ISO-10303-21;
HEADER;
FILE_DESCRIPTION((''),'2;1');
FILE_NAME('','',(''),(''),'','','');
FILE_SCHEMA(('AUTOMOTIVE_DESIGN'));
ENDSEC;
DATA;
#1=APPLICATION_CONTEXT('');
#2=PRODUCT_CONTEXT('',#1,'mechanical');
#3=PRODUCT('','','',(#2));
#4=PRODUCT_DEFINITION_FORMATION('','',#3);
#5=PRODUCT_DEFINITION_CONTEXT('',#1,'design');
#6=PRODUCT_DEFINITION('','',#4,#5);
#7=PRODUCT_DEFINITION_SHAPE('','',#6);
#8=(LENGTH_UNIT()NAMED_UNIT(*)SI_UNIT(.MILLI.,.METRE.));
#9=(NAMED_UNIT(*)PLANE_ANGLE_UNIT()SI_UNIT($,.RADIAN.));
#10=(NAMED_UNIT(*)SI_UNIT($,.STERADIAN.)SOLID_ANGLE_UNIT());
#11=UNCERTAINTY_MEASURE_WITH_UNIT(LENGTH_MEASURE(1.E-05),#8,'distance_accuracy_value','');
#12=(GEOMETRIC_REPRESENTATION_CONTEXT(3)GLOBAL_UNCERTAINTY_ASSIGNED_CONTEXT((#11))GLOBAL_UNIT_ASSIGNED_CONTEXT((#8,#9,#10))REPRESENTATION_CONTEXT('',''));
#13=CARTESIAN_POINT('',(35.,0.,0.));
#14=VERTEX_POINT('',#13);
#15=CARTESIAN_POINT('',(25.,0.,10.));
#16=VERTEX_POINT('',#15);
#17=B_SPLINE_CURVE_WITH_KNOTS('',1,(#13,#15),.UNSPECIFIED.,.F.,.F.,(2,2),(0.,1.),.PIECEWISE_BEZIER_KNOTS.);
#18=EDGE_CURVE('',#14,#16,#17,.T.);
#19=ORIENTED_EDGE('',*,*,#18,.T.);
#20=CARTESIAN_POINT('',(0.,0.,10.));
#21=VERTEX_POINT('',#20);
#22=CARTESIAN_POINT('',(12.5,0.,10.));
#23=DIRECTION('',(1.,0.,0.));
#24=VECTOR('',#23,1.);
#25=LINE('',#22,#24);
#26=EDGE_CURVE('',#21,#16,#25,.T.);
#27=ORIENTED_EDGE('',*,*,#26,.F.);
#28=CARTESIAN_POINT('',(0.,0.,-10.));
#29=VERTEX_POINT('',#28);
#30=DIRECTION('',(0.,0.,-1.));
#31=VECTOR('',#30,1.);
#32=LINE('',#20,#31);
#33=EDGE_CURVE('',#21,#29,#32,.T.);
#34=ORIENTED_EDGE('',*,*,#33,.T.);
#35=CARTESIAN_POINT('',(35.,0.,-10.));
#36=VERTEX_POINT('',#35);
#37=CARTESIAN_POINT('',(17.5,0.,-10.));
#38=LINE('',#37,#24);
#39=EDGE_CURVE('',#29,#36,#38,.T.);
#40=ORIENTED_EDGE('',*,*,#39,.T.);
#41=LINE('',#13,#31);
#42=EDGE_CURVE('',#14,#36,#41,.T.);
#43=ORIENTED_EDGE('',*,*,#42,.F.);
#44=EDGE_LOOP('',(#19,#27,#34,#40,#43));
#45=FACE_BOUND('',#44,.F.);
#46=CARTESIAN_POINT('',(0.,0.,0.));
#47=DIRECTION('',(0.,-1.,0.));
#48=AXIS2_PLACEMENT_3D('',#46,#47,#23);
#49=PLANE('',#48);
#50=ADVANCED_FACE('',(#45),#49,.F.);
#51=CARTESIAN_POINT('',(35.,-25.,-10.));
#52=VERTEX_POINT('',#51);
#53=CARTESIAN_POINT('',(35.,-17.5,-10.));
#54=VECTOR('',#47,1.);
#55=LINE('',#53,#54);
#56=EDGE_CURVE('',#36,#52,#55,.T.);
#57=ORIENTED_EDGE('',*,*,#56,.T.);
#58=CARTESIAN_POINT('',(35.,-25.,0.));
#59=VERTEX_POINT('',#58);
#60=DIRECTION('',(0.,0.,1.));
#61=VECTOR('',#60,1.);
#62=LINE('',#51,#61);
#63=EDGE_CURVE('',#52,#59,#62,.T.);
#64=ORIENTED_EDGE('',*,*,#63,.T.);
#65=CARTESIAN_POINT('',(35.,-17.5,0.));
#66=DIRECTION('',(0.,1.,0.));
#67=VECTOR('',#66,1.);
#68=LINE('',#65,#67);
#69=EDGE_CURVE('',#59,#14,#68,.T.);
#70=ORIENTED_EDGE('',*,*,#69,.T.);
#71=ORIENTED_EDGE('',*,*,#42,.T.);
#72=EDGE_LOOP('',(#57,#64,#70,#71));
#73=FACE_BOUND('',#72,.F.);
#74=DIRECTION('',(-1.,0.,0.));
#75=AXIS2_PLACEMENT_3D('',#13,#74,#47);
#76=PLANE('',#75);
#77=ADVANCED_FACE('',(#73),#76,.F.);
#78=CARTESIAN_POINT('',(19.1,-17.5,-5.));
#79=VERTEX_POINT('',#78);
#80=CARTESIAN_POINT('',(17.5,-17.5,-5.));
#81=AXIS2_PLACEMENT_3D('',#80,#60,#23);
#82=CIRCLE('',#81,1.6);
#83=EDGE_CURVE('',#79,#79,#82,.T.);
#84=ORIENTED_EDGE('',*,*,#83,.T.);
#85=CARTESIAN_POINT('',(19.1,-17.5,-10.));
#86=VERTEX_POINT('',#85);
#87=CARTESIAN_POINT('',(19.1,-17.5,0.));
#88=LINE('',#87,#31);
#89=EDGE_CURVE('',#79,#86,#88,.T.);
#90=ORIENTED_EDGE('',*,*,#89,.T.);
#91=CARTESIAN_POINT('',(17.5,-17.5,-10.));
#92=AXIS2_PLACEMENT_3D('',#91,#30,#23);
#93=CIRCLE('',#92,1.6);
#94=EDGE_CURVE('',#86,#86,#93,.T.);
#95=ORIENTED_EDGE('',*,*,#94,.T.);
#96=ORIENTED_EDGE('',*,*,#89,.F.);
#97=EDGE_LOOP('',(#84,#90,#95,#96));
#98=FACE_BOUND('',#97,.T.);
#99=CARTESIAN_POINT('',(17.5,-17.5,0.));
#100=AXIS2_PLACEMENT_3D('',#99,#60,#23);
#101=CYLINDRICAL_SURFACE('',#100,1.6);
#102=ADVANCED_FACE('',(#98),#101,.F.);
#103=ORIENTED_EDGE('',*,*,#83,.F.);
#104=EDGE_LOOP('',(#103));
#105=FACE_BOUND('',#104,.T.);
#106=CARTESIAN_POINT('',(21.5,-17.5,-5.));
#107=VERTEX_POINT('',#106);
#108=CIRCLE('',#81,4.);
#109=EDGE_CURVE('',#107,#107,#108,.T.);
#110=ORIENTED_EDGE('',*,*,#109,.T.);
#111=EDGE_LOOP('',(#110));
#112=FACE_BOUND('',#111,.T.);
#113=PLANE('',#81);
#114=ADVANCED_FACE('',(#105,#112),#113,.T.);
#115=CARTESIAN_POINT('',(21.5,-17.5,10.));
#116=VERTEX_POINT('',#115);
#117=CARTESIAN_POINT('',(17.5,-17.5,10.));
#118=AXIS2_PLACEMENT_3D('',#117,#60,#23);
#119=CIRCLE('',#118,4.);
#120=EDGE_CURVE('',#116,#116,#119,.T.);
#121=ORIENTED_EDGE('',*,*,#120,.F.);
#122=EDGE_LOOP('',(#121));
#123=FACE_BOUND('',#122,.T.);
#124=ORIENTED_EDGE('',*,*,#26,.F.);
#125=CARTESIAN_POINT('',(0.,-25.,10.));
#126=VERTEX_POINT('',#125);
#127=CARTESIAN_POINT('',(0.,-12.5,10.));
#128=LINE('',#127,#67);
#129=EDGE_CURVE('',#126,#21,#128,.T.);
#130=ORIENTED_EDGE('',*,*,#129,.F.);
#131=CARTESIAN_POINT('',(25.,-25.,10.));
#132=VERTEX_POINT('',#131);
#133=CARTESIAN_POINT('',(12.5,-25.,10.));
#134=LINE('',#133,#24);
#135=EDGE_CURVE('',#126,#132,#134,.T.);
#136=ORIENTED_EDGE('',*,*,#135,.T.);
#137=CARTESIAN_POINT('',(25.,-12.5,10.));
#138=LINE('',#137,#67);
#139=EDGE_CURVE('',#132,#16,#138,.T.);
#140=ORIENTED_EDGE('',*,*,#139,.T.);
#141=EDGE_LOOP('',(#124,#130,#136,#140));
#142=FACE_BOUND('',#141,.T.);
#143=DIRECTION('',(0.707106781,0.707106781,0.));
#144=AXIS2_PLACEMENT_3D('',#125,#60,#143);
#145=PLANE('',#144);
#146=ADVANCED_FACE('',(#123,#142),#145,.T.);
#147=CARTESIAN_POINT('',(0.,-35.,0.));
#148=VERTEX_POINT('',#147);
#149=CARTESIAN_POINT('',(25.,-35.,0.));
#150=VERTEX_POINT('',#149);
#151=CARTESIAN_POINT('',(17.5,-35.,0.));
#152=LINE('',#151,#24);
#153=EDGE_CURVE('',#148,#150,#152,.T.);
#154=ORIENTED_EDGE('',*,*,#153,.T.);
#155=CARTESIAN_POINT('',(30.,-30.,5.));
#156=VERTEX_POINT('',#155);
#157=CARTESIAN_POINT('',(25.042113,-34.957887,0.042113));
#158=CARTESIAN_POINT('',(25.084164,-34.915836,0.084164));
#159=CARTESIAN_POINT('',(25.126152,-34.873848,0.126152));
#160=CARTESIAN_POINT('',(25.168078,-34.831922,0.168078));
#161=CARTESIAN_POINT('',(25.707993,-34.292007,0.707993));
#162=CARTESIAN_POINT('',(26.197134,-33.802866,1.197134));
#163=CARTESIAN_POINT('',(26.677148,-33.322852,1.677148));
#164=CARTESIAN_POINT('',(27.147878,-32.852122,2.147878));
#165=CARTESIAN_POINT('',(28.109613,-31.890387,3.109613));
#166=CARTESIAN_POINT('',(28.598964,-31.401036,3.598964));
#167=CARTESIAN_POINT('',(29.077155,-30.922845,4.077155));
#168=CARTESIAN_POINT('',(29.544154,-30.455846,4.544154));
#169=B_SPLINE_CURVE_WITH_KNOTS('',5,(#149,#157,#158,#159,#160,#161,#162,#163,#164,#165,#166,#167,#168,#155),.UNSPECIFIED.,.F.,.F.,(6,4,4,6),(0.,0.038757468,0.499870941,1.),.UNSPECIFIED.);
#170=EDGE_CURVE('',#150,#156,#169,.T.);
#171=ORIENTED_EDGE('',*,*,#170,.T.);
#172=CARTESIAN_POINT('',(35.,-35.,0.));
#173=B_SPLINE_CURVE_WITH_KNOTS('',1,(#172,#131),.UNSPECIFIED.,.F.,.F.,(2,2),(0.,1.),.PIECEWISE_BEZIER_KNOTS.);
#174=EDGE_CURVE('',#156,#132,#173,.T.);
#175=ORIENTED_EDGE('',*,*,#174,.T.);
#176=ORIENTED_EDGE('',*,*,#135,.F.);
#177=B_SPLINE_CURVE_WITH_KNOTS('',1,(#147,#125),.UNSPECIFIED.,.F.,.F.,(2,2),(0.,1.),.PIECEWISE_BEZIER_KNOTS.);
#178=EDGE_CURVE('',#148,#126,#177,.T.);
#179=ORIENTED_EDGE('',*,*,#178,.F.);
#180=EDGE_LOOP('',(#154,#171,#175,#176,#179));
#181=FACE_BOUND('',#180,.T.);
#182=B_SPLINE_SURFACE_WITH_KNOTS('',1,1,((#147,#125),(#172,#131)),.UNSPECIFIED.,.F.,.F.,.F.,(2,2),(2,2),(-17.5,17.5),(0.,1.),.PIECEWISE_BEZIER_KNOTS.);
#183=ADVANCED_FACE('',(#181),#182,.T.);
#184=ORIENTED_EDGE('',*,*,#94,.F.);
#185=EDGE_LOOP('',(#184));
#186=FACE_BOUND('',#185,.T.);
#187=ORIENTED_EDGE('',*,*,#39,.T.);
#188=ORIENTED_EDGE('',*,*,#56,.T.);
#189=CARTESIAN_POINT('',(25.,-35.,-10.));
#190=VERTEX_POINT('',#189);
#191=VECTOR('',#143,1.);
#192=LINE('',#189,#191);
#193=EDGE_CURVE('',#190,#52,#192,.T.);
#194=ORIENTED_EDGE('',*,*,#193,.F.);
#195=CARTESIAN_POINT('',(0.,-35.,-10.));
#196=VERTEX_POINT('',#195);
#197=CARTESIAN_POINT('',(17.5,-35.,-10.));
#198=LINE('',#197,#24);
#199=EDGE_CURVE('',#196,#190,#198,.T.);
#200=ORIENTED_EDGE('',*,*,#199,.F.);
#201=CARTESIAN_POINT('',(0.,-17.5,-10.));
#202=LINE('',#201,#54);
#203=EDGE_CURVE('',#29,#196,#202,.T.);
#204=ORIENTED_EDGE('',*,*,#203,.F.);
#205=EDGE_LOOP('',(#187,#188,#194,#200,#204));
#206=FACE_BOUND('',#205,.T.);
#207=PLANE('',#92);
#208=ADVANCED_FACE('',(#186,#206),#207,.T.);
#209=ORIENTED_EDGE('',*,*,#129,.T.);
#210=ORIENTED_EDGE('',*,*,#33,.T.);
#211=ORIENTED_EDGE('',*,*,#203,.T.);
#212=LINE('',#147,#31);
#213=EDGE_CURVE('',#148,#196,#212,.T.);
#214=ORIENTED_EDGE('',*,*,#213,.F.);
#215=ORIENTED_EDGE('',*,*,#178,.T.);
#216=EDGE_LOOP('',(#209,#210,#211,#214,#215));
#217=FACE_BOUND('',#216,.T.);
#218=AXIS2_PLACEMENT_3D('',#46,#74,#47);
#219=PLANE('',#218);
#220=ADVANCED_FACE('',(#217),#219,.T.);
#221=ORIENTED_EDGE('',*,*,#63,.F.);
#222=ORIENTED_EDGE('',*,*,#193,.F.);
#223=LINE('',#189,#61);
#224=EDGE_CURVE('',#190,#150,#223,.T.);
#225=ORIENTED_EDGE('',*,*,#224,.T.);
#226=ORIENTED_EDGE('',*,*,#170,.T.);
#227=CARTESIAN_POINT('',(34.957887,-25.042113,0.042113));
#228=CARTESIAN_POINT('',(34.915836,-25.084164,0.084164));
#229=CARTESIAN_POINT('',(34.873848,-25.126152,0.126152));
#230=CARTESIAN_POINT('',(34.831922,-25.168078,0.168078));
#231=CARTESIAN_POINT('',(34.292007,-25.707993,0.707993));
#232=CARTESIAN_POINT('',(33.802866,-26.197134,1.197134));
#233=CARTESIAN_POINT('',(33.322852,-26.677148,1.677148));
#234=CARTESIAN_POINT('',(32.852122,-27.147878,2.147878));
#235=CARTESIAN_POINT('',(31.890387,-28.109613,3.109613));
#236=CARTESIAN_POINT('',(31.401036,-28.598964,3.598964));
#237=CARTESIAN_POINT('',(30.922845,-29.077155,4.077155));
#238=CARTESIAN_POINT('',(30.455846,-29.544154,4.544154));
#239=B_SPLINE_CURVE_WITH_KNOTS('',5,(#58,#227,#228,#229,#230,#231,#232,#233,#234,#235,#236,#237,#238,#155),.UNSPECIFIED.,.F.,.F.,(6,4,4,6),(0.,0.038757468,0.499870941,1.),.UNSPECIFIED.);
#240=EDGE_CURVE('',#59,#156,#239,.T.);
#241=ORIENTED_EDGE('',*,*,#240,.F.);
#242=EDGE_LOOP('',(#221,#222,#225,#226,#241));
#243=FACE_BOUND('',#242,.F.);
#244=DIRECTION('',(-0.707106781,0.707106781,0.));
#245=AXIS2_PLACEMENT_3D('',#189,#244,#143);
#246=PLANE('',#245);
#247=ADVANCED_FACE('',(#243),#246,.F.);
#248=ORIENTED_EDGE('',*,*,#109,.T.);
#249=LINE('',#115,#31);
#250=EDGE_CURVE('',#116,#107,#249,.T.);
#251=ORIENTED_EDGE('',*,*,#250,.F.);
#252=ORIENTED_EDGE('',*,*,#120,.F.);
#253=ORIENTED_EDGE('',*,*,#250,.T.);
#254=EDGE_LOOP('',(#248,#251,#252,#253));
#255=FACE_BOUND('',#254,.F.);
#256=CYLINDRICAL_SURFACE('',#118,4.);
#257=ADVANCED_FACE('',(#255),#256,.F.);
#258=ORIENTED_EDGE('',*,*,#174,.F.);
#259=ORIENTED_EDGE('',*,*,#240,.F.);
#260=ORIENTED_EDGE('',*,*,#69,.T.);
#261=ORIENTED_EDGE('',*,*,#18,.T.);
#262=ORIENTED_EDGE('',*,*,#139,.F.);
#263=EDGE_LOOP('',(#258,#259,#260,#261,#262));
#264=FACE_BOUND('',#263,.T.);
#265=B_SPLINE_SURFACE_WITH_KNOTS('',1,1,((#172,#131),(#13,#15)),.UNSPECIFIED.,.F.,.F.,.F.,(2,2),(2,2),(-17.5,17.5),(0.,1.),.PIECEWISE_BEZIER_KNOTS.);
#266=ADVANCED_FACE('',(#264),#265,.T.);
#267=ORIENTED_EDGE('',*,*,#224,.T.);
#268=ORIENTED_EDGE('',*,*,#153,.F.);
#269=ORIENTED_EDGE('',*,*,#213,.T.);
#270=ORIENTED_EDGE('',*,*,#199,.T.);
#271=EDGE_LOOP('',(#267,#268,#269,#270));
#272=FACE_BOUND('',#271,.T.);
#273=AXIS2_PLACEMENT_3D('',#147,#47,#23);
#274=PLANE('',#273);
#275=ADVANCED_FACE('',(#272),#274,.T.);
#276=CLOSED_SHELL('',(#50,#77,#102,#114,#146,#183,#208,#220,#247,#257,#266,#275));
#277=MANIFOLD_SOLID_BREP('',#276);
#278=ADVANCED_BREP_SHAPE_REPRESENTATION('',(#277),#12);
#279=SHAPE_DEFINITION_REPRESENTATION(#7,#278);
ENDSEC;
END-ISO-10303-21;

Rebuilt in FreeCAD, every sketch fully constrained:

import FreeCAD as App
import Part
import Sketcher
from FreeCAD import Vector

doc = App.newDocument("Part")
params = doc.addObject("Spreadsheet::Sheet", "Params")
for row, (alias, value) in enumerate([
    ("sketch1_width", "35 mm"),
    ("sketch2_width", "25 mm"),
    ("sketch3_diameter", "3.2 mm"),
    ("sketch3_width", "35 mm"),
    ("pad1_length", "10 mm"),
    ("sketch4_diameter", "3.2 mm"),
    ("sketch5_diameter", "8 mm"),
    ("sketch5_diameter2", "3.2 mm"),
    ("pocket2_length", "15 mm"),
    ("sketch6_width", "10 mm"),
    ("pocket3_length", "25 mm"),
], start=1):
    params.set(f"A{row}", alias)
    params.set(f"B{row}", "=" + value)
    params.setAlias(f"B{row}", alias)

body = doc.addObject("PartDesign::Body", "Body")

sketch1 = doc.addObject("Sketcher::SketchObject", "Sketch")
body.addObject(sketch1)
sketch1.AttachmentSupport = (doc.XY_Plane, [""])
sketch1.MapMode = "FlatFace"
sketch1.addGeometry(Part.LineSegment(Vector(0, 0, 0), Vector(0, -35, 0)), False)
sketch1.addGeometry(Part.LineSegment(Vector(0, -35, 0), Vector(35, -35, 0)), False)
sketch1.addGeometry(Part.LineSegment(Vector(35, -35, 0), Vector(35, 0, 0)), False)
sketch1.addGeometry(Part.LineSegment(Vector(35, 0, 0), Vector(0, 0, 0)), False)
sketch1.addConstraint(Sketcher.Constraint("Coincident", 0, 2, 1, 1))
sketch1.addConstraint(Sketcher.Constraint("Coincident", 1, 2, 2, 1))
sketch1.addConstraint(Sketcher.Constraint("Coincident", 2, 2, 3, 1))
sketch1.addConstraint(Sketcher.Constraint("Coincident", 3, 2, 0, 1))
sketch1.addConstraint(Sketcher.Constraint("Vertical", 0))
sketch1.addConstraint(Sketcher.Constraint("Horizontal", 1))
sketch1.addConstraint(Sketcher.Constraint("Vertical", 2))
sketch1.addConstraint(Sketcher.Constraint("Horizontal", 3))
sketch1.addConstraint(Sketcher.Constraint("Coincident", 3, 2, -1, 1))
sketch1.addConstraint(Sketcher.Constraint("Equal", 3, 0))
sketch1.addConstraint(Sketcher.Constraint("DistanceX", 1, 1, 1, 2, 35.0))
sketch1.setExpression("Constraints[10]", "Params.sketch1_width")

sketch2 = doc.addObject("Sketcher::SketchObject", "Sketch001")
body.addObject(sketch2)
sketch2.AttachmentSupport = (doc.XY_Plane, [""])
sketch2.MapMode = "FlatFace"
sketch2.AttachmentOffset = App.Placement(Vector(0, 0, 10), App.Rotation())
sketch2.addGeometry(Part.LineSegment(Vector(0, 0, 0), Vector(0, -25, 0)), False)
sketch2.addGeometry(Part.LineSegment(Vector(0, -25, 0), Vector(25, -25, 0)), False)
sketch2.addGeometry(Part.LineSegment(Vector(25, -25, 0), Vector(25, 0, 0)), False)
sketch2.addGeometry(Part.LineSegment(Vector(25, 0, 0), Vector(0, 0, 0)), False)
sketch2.addConstraint(Sketcher.Constraint("Coincident", 0, 2, 1, 1))
sketch2.addConstraint(Sketcher.Constraint("Coincident", 1, 2, 2, 1))
sketch2.addConstraint(Sketcher.Constraint("Coincident", 2, 2, 3, 1))
sketch2.addConstraint(Sketcher.Constraint("Coincident", 3, 2, 0, 1))
sketch2.addConstraint(Sketcher.Constraint("Vertical", 0))
sketch2.addConstraint(Sketcher.Constraint("Horizontal", 1))
sketch2.addConstraint(Sketcher.Constraint("Vertical", 2))
sketch2.addConstraint(Sketcher.Constraint("Horizontal", 3))
sketch2.addConstraint(Sketcher.Constraint("Coincident", 3, 2, -1, 1))
sketch2.addConstraint(Sketcher.Constraint("Equal", 3, 0))
sketch2.addConstraint(Sketcher.Constraint("DistanceX", 1, 1, 1, 2, 25.0))
sketch2.setExpression("Constraints[10]", "Params.sketch2_width")

additiveloft = doc.addObject("PartDesign::AdditiveLoft", "AdditiveLoft")
body.addObject(additiveloft)
additiveloft.Profile = sketch1
additiveloft.Sections = [sketch2]

sketch3 = doc.addObject("Sketcher::SketchObject", "Sketch002")
body.addObject(sketch3)
sketch3.AttachmentSupport = (doc.XY_Plane, [""])
sketch3.MapMode = "FlatFace"
sketch3.addGeometry(Part.LineSegment(Vector(0, -35, 0), Vector(0, 0, 0)), False)
sketch3.addGeometry(Part.LineSegment(Vector(0, 0, 0), Vector(35, 0, 0)), False)
sketch3.addGeometry(Part.LineSegment(Vector(35, 0, 0), Vector(35, -35, 0)), False)
sketch3.addGeometry(Part.LineSegment(Vector(35, -35, 0), Vector(0, -35, 0)), False)
sketch3.addGeometry(Part.Circle(Vector(17.5, -17.5, 0), Vector(0, 0, 1), 1.6), False)
sketch3.addConstraint(Sketcher.Constraint("Coincident", 0, 2, 1, 1))
sketch3.addConstraint(Sketcher.Constraint("Coincident", 1, 2, 2, 1))
sketch3.addConstraint(Sketcher.Constraint("Coincident", 2, 2, 3, 1))
sketch3.addConstraint(Sketcher.Constraint("Coincident", 3, 2, 0, 1))
sketch3.addConstraint(Sketcher.Constraint("Vertical", 0))
sketch3.addConstraint(Sketcher.Constraint("Horizontal", 1))
sketch3.addConstraint(Sketcher.Constraint("Vertical", 2))
sketch3.addConstraint(Sketcher.Constraint("Horizontal", 3))
sketch3.addConstraint(Sketcher.Constraint("Coincident", 0, 2, -1, 1))
sketch3.addConstraint(Sketcher.Constraint("Equal", 3, 0))
sketch3.addConstraint(Sketcher.Constraint("Diameter", 4, 3.2))
sketch3.addConstraint(Sketcher.Constraint("DistanceX", 1, 1, 1, 2, 35.0))
sketch3.addConstraint(Sketcher.Constraint("DistanceX", -1, 1, 4, 3, 17.5))
sketch3.addConstraint(Sketcher.Constraint("DistanceY", 4, 3, -1, 1, 17.5))
sketch3.setExpression("Constraints[10]", "Params.sketch3_diameter")
sketch3.setExpression("Constraints[11]", "Params.sketch3_width")
pad1 = doc.addObject("PartDesign::Pad", "Pad")
body.addObject(pad1)
pad1.Profile = sketch3
pad1.setExpression("Length", "Params.pad1_length")
pad1.Reversed = True

sketch4 = doc.addObject("Sketcher::SketchObject", "Sketch003")
body.addObject(sketch4)
sketch4.AttachmentSupport = (doc.XY_Plane, [""])
sketch4.MapMode = "FlatFace"
sketch4.addGeometry(Part.Circle(Vector(17.5, -17.5, 0), Vector(0, 0, 1), 1.6), False)
sketch4.addConstraint(Sketcher.Constraint("Diameter", 0, 3.2))
sketch4.addConstraint(Sketcher.Constraint("DistanceX", -1, 1, 0, 3, 17.5))
sketch4.addConstraint(Sketcher.Constraint("DistanceY", 0, 3, -1, 1, 17.5))
sketch4.setExpression("Constraints[0]", "Params.sketch4_diameter")
pocket1 = doc.addObject("PartDesign::Pocket", "Pocket")
body.addObject(pocket1)
pocket1.Profile = sketch4
pocket1.Type = "ThroughAll"
pocket1.Reversed = True

sketch5 = doc.addObject("Sketcher::SketchObject", "Sketch004")
body.addObject(sketch5)
sketch5.AttachmentSupport = (doc.XY_Plane, [""])
sketch5.MapMode = "FlatFace"
sketch5.AttachmentOffset = App.Placement(Vector(0, 0, 10), App.Rotation())
sketch5.addGeometry(Part.Circle(Vector(17.5, -17.5, 0), Vector(0, 0, 1), 4), False)
sketch5.addGeometry(Part.Circle(Vector(17.5, -17.5, 0), Vector(0, 0, 1), 1.6), False)
sketch5.addConstraint(Sketcher.Constraint("Coincident", 1, 3, 0, 3))
sketch5.addConstraint(Sketcher.Constraint("Diameter", 0, 8.0))
sketch5.addConstraint(Sketcher.Constraint("Diameter", 1, 3.2))
sketch5.addConstraint(Sketcher.Constraint("DistanceX", -1, 1, 0, 3, 17.5))
sketch5.addConstraint(Sketcher.Constraint("DistanceY", 0, 3, -1, 1, 17.5))
sketch5.setExpression("Constraints[1]", "Params.sketch5_diameter")
sketch5.setExpression("Constraints[2]", "Params.sketch5_diameter2")
pocket2 = doc.addObject("PartDesign::Pocket", "Pocket001")
body.addObject(pocket2)
pocket2.Profile = sketch5
pocket2.setExpression("Length", "Params.pocket2_length")

sketch6 = doc.addObject("Sketcher::SketchObject", "Sketch005")
body.addObject(sketch6)
sketch6.AttachmentSupport = (doc.XY_Plane, [""])
sketch6.MapMode = "FlatFace"
sketch6.AttachmentOffset = App.Placement(Vector(0, 0, -10), App.Rotation())
sketch6.addGeometry(Part.LineSegment(Vector(35, -25, 0), Vector(35, -35, 0)), False)
sketch6.addGeometry(Part.LineSegment(Vector(35, -35, 0), Vector(25, -35, 0)), False)
sketch6.addGeometry(Part.LineSegment(Vector(25, -35, 0), Vector(35, -25, 0)), False)
sketch6.addConstraint(Sketcher.Constraint("Coincident", 0, 2, 1, 1))
sketch6.addConstraint(Sketcher.Constraint("Coincident", 1, 2, 2, 1))
sketch6.addConstraint(Sketcher.Constraint("Coincident", 2, 2, 0, 1))
sketch6.addConstraint(Sketcher.Constraint("Vertical", 0))
sketch6.addConstraint(Sketcher.Constraint("Horizontal", 1))
sketch6.addConstraint(Sketcher.Constraint("Equal", 1, 0))
sketch6.addConstraint(Sketcher.Constraint("DistanceX", 1, 2, 1, 1, 10.0))
sketch6.addConstraint(Sketcher.Constraint("DistanceX", -1, 1, 0, 2, 35.0))
sketch6.addConstraint(Sketcher.Constraint("DistanceY", 0, 2, -1, 1, 35.0))
sketch6.setExpression("Constraints[6]", "Params.sketch6_width")
pocket3 = doc.addObject("PartDesign::Pocket", "Pocket002")
body.addObject(pocket3)
pocket3.Profile = sketch6
pocket3.setExpression("Length", "Params.pocket3_length")
pocket3.Reversed = True

doc.recompute()
